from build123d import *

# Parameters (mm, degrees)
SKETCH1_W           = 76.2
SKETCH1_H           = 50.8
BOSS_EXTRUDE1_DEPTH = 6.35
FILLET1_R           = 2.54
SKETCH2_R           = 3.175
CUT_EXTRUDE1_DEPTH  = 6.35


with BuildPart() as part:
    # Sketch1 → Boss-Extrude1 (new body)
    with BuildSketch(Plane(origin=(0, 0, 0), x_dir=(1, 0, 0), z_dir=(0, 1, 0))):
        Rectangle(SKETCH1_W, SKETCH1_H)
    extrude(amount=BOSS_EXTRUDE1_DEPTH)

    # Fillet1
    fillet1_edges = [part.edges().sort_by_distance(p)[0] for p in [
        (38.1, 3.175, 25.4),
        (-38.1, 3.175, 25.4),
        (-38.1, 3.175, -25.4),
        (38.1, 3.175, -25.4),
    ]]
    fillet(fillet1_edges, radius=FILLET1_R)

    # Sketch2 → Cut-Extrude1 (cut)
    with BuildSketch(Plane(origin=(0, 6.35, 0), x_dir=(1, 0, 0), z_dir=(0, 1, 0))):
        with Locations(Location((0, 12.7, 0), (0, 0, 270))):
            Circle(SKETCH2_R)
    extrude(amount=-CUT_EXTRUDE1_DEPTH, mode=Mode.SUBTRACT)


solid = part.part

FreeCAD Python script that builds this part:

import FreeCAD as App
import Part
import Sketcher

V = App.Vector
Q = App.Units.Quantity


def edges_at(feature, points):
    """Names of the edges that pass closest to the given points."""
    edges = feature.Shape.Edges
    near = lambda p: min(range(len(edges)), key=lambda i: edges[i].distToShape(Part.Vertex(*p))[0])
    return sorted({f"Edge{near(p) + 1}" for p in points})

doc = App.newDocument("Part")
body = doc.addObject("PartDesign::Body", "Body")

sketch1 = body.newObject("Sketcher::SketchObject", "Sketch")
sketch1.AttachmentSupport = (doc.getObject("XZ_Plane"), [""])
sketch1.MapMode = "FlatFace"
sketch1.addGeometry([
    Part.LineSegment(V(-38, -25, 0), V(-38, 25, 0)),
    Part.LineSegment(V(-38, 25, 0), V(38, 25, 0)),
    Part.LineSegment(V(38, 25, 0), V(38, -25, 0)),
    Part.LineSegment(V(38, -25, 0), V(-38, -25, 0)),
], False)
sketch1.addConstraint([
    Sketcher.Constraint("Coincident", 0, 2, 1, 1),
    Sketcher.Constraint("Coincident", 1, 2, 2, 1),
    Sketcher.Constraint("Coincident", 2, 2, 3, 1),
    Sketcher.Constraint("Coincident", 3, 2, 0, 1),
    Sketcher.Constraint("Vertical", 0),
    Sketcher.Constraint("Horizontal", 1),
    Sketcher.Constraint("Vertical", 2),
    Sketcher.Constraint("Horizontal", 3),
    Sketcher.Constraint("Symmetric", 0, 2, 2, 2, -1, 1),
    Sketcher.Constraint("DistanceX", 1, 1, 1, 2, Q("3 in")),
    Sketcher.Constraint("DistanceY", 0, 1, 0, 2, Q("2 in")),
])
pad1 = body.newObject("PartDesign::Pad", "Pad")
pad1.Profile = sketch1
pad1.Length = Q("0.25 in")
pad1.Reversed = True
doc.recompute()

fillet = body.newObject("PartDesign::Fillet", "Fillet")
fillet.Base = (pad1, edges_at(pad1, [
    (38.1, 3.175, 25.4),
    (-38.1, 3.175, 25.4),
    (-38.1, 3.175, -25.4),
    (38.1, 3.175, -25.4),
]))
fillet.Radius = Q("0.1 in")

sketch2 = body.newObject("Sketcher::SketchObject", "Sketch001")
sketch2.AttachmentSupport = (doc.getObject("XZ_Plane"), [""])
sketch2.MapMode = "FlatFace"
sketch2.AttachmentOffset = App.Placement(V(0, 0, -0.25 * 25.4), App.Rotation())
sketch2.addGeometry(Part.Circle(V(0, -12.7, 0), V(0, 0, 1), 3.2), False)
sketch2.addConstraint([
    Sketcher.Constraint("PointOnObject", 0, 3, -2),
    Sketcher.Constraint("Diameter", 0, Q("0.25 in")),
    Sketcher.Constraint("DistanceY", 0, 3, -1, 1, Q("0.5 in")),
])
pocket1 = body.newObject("PartDesign::Pocket", "Pocket")
pocket1.Profile = sketch2
pocket1.Length = Q("0.25 in")
pocket1.Reversed = True

doc.recompute()
